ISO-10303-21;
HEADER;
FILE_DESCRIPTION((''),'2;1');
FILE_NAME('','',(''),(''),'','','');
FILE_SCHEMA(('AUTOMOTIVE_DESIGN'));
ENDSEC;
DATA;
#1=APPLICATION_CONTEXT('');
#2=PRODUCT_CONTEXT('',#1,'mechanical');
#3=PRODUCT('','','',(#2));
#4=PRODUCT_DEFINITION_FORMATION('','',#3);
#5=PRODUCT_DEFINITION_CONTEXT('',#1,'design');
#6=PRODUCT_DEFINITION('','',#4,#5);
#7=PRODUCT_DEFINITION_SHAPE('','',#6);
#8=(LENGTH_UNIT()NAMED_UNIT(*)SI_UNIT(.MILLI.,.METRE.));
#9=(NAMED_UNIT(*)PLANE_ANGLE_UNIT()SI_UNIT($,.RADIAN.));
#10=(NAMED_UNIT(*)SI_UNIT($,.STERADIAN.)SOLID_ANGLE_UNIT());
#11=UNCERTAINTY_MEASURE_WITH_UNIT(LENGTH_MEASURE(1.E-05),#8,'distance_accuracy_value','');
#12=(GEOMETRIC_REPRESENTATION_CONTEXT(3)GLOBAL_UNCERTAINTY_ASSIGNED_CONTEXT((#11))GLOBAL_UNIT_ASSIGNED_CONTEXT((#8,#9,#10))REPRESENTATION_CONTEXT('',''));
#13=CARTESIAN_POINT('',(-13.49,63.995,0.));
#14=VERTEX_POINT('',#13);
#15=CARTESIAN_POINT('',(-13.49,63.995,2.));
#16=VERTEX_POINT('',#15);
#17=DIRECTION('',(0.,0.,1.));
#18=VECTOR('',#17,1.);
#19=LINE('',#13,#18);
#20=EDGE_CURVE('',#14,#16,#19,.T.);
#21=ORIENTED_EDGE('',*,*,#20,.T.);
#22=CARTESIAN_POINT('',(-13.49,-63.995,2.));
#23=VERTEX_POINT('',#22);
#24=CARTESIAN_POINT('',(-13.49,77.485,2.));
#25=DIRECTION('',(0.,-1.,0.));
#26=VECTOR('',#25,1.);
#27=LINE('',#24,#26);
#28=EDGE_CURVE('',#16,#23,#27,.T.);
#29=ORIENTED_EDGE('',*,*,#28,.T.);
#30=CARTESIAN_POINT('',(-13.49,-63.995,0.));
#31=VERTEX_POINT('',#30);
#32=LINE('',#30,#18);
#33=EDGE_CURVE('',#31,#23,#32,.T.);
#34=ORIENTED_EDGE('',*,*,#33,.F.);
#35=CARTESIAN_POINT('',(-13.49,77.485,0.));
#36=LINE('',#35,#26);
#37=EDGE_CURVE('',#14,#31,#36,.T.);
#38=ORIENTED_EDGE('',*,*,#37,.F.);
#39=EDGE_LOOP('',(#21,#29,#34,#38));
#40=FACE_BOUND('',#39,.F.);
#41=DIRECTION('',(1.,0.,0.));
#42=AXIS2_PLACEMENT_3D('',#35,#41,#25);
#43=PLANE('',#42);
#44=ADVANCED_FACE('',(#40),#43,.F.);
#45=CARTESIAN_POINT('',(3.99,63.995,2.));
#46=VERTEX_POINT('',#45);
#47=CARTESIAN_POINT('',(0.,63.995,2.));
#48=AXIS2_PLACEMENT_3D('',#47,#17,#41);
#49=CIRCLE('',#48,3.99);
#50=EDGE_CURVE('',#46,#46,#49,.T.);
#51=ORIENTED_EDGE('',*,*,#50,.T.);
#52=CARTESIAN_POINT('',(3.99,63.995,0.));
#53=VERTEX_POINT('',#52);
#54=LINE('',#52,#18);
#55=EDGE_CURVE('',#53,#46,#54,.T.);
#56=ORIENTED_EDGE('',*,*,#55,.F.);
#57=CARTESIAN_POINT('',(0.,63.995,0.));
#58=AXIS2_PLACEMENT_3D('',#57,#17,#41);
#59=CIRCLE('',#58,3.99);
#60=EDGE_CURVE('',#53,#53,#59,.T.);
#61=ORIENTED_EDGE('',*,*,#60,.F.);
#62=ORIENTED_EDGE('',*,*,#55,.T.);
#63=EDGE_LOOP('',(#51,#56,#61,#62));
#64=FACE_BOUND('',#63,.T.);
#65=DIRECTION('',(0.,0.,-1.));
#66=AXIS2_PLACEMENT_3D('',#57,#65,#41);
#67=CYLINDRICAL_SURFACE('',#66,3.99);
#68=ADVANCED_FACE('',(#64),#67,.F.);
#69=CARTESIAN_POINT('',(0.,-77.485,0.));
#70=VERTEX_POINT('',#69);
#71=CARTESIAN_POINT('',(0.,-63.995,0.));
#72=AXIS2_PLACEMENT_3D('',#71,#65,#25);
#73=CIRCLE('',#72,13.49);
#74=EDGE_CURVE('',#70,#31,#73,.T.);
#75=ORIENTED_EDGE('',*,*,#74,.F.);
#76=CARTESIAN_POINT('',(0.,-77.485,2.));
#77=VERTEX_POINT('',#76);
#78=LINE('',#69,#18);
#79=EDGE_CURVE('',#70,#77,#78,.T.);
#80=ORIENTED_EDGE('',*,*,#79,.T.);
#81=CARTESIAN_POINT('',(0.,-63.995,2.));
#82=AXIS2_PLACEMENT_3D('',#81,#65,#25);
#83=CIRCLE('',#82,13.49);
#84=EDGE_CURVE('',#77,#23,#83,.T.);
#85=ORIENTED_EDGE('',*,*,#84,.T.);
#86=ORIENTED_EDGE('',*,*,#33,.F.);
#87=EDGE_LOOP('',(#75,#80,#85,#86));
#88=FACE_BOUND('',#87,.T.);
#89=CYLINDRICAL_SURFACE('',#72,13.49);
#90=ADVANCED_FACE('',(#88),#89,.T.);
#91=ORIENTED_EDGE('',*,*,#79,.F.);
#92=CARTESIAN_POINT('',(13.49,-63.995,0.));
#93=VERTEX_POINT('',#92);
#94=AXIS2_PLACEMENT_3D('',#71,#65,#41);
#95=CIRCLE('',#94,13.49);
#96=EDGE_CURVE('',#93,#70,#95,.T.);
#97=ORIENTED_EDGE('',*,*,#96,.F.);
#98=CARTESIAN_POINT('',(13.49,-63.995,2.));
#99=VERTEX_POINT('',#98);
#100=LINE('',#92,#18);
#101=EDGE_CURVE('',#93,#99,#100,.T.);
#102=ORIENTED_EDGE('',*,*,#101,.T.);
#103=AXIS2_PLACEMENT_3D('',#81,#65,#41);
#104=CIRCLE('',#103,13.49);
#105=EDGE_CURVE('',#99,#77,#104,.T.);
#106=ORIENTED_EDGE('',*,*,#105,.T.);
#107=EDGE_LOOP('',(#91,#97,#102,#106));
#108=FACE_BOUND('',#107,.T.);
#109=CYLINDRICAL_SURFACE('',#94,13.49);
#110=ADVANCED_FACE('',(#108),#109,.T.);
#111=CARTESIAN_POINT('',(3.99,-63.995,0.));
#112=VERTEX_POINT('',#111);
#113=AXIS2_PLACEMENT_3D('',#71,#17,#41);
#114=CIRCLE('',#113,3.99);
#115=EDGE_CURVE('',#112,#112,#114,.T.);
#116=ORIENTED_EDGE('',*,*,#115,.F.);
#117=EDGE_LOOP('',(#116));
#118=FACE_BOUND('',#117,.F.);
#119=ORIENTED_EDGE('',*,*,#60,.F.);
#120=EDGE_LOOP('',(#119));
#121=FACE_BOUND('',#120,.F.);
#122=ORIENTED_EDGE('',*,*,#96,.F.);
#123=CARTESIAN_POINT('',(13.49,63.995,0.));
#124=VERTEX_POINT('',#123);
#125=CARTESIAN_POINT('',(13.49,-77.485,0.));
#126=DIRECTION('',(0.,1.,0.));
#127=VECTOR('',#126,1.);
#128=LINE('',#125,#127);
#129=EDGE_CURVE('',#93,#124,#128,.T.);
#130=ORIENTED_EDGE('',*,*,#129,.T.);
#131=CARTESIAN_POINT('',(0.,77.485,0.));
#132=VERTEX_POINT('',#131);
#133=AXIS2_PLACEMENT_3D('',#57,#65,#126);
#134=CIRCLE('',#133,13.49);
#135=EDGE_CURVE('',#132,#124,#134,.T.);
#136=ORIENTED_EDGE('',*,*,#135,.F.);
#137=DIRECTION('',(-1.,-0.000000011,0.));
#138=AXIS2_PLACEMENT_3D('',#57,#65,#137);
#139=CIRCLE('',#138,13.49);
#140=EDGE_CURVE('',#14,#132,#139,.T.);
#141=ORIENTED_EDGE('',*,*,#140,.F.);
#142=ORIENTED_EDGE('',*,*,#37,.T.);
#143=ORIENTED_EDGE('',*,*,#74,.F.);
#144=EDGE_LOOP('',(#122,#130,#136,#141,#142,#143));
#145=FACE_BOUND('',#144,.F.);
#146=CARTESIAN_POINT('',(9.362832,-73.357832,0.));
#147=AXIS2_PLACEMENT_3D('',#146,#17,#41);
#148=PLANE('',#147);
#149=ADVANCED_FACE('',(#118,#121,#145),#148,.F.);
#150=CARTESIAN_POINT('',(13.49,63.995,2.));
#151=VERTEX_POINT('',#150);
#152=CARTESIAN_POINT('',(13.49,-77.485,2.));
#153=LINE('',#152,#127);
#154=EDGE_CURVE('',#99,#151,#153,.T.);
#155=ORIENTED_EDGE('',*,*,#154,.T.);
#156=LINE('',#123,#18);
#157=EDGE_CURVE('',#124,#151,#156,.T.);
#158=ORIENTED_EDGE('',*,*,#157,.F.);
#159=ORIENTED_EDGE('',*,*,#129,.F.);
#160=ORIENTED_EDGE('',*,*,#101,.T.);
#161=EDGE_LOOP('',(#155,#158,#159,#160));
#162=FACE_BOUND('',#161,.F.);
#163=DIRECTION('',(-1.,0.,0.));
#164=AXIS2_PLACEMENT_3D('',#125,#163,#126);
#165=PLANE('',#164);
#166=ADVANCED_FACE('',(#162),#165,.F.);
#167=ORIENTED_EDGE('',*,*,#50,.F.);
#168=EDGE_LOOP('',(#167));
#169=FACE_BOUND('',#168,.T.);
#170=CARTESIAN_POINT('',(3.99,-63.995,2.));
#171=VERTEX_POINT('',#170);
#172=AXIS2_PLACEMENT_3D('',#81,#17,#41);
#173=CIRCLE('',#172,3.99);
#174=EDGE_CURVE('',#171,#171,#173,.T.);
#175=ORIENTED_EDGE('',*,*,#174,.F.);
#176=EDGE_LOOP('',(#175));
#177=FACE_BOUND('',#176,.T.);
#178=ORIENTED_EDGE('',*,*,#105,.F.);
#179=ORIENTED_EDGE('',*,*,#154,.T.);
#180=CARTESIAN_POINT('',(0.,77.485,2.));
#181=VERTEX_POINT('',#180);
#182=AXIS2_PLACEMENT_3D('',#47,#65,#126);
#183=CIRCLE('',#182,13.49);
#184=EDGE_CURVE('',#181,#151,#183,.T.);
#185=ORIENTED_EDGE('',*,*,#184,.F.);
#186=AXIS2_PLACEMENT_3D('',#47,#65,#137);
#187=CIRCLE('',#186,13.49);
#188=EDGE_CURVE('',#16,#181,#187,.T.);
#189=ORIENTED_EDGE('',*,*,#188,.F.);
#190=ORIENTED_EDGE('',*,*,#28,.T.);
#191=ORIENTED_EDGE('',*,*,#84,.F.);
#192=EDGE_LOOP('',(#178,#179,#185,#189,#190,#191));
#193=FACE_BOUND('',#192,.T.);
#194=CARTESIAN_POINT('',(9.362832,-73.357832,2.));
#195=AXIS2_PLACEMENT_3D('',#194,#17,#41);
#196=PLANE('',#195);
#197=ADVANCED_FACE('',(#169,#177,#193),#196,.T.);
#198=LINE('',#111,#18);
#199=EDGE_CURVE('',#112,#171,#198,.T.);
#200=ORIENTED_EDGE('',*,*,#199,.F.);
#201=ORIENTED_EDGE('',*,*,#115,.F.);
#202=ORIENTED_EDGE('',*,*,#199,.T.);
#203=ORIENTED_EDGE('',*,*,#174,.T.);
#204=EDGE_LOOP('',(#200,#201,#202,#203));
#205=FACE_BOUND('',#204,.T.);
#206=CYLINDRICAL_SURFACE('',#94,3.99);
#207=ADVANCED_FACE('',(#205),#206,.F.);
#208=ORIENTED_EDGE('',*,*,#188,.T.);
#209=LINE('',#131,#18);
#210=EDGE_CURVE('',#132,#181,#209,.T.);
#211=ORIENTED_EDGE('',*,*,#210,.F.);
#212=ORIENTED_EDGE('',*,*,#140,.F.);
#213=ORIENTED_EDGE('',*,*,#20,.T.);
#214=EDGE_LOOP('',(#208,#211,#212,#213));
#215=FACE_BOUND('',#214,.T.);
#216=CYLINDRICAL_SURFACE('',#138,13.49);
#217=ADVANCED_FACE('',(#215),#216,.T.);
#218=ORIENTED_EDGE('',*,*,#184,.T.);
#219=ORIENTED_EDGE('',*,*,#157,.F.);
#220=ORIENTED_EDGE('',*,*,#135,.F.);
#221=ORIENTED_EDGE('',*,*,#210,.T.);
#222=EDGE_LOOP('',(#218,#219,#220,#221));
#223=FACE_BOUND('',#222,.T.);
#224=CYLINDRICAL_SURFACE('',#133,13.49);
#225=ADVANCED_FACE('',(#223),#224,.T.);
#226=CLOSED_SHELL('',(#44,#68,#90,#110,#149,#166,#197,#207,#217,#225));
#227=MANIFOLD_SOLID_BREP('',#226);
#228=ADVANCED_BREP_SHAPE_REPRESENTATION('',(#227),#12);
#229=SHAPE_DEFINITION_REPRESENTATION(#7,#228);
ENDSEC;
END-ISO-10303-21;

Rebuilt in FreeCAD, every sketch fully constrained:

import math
import FreeCAD as App
import Part
import Sketcher

doc = App.newDocument("Part")
body = doc.addObject("PartDesign::Body", "Body")

# Sketch on XY plane
sketch1 = doc.addObject("Sketcher::SketchObject", "Sketch")
body.addObject(sketch1)
sketch1.AttachmentSupport = (doc.XY_Plane, [""])
sketch1.MapMode = "FlatFace"
sketch1.addGeometry([
    Part.LineSegment(App.Vector(13.49, -77.485, 0), App.Vector(13.49, 77.485, 0)),  # 0
    Part.LineSegment(App.Vector(13.49, 77.485, 0), App.Vector(-13.49, 77.485, 0)),  # 1
    Part.LineSegment(App.Vector(-13.49, 77.485, 0), App.Vector(-13.49, -77.485, 0)),  # 2
    Part.LineSegment(App.Vector(-13.49, -77.485, 0), App.Vector(13.49, -77.485, 0)),  # 3
    Part.Circle(App.Vector(0, -63.995, 0), App.Vector(0, 0, 1), 3.99),  # 4
    Part.Circle(App.Vector(0, 63.995, 0), App.Vector(0, 0, 1), 3.99),  # 5
], False)
sketch1.addConstraint([
    Sketcher.Constraint("Coincident", 0, 2, 1, 1),
    Sketcher.Constraint("Coincident", 1, 2, 2, 1),
    Sketcher.Constraint("Coincident", 2, 2, 3, 1),
    Sketcher.Constraint("Coincident", 3, 2, 0, 1),
    Sketcher.Constraint("Vertical", 0),
    Sketcher.Constraint("Horizontal", 1),
    Sketcher.Constraint("Vertical", 2),
    Sketcher.Constraint("Horizontal", 3),
    Sketcher.Constraint("Equal", 4, 5),
    Sketcher.Constraint("Symmetric", 4, 3, 5, 3, -1, 1),
    Sketcher.Constraint("Symmetric", 0, 2, 2, 2, -1, 1),
    Sketcher.Constraint("PointOnObject", 4, 3, -2),
    Sketcher.Constraint("Diameter", 4, 7.98),
    Sketcher.Constraint("DistanceX", 1, 2, 1, 1, 26.98),
    Sketcher.Constraint("DistanceY", 0, 1, 0, 2, 154.97),
    Sketcher.Constraint("DistanceY", 4, 3, 5, 3, 127.99),
])
pad1 = doc.addObject("PartDesign::Pad", "Pad")
body.addObject(pad1)
pad1.Profile = sketch1
pad1.Length = 2

# Sketch on XY plane
sketch2 = doc.addObject("Sketcher::SketchObject", "Sketch001")
body.addObject(sketch2)
sketch2.AttachmentSupport = (doc.XY_Plane, [""])
sketch2.MapMode = "FlatFace"
sketch2.addGeometry([
    Part.ArcOfCircle(Part.Circle(App.Vector(0, 63.995, 0), App.Vector(0, 0, 1), 13.49), math.radians(0), math.radians(90)),  # 0
    Part.LineSegment(App.Vector(13.49, 63.995, 0), App.Vector(13.49, 77.485, 0)),  # 1
    Part.LineSegment(App.Vector(13.49, 77.485, 0), App.Vector(0, 77.485, 0)),  # 2
    Part.LineSegment(App.Vector(-13.49, 77.485, 0), App.Vector(-13.49, 63.995, 0)),  # 3
    Part.ArcOfCircle(Part.Circle(App.Vector(0, 63.995, 0), App.Vector(0, 0, 1), 13.49), math.radians(90), math.radians(180.000001)),  # 4
    Part.LineSegment(App.Vector(0, 77.485, 0), App.Vector(-13.49, 77.485, 0)),  # 5
    Part.LineSegment(App.Vector(0, -77.485, 0), App.Vector(13.49, -77.485, 0)),  # 6
    Part.LineSegment(App.Vector(13.49, -77.485, 0), App.Vector(13.49, -63.995, 0)),  # 7
    Part.ArcOfCircle(Part.Circle(App.Vector(0, -63.995, 0), App.Vector(0, 0, 1), 13.49), math.radians(-90), math.radians(0)),  # 8
    Part.LineSegment(App.Vector(-13.49, -77.485, 0), App.Vector(0, -77.485, 0)),  # 9
    Part.ArcOfCircle(Part.Circle(App.Vector(0, -63.995, 0), App.Vector(0, 0, 1), 13.49), math.radians(180), math.radians(270)),  # 10
    Part.LineSegment(App.Vector(-13.49, -63.995, 0), App.Vector(-13.49, -77.485, 0)),  # 11
], False)
sketch2.addConstraint([
    Sketcher.Constraint("Tangent", 0, 1, 1, 1),
    Sketcher.Constraint("Coincident", 1, 2, 2, 1),
    Sketcher.Constraint("Tangent", 2, 2, 0, 2),
    Sketcher.Constraint("Tangent", 3, 2, 4, 2),
    Sketcher.Constraint("Tangent", 4, 1, 5, 1),
    Sketcher.Constraint("Coincident", 5, 2, 3, 1),
    Sketcher.Constraint("Coincident", 6, 2, 7, 1),
    Sketcher.Constraint("Tangent", 7, 2, 8, 2),
    Sketcher.Constraint("Tangent", 8, 1, 6, 1),
    Sketcher.Constraint("Tangent", 9, 2, 10, 2),
    Sketcher.Constraint("Tangent", 10, 1, 11, 1),
    Sketcher.Constraint("Coincident", 11, 2, 9, 1),
    Sketcher.Constraint("Vertical", 1),
    Sketcher.Constraint("Horizontal", 2),
    Sketcher.Constraint("Vertical", 3),
    Sketcher.Constraint("Horizontal", 5),
    Sketcher.Constraint("Horizontal", 6),
    Sketcher.Constraint("Vertical", 7),
    Sketcher.Constraint("Horizontal", 9),
    Sketcher.Constraint("Vertical", 11),
    Sketcher.Constraint("Coincident", 4, 3, 0, 3),
    Sketcher.Constraint("Coincident", 10, 3, 8, 3),
    Sketcher.Constraint("Equal", 0, 4),
    Sketcher.Constraint("Equal", 4, 8),
    Sketcher.Constraint("Equal", 8, 10),
    Sketcher.Constraint("Symmetric", 0, 3, 8, 3, -1, 1),
    Sketcher.Constraint("PointOnObject", 0, 3, -2),
    Sketcher.Constraint("Radius", 0, 13.49),
    Sketcher.Constraint("DistanceY", 8, 3, 0, 3, 127.99),
])
pocket1 = doc.addObject("PartDesign::Pocket", "Pocket")
body.addObject(pocket1)
pocket1.Profile = sketch2
pocket1.Length = 25
pocket1.Reversed = True

doc.recompute()
